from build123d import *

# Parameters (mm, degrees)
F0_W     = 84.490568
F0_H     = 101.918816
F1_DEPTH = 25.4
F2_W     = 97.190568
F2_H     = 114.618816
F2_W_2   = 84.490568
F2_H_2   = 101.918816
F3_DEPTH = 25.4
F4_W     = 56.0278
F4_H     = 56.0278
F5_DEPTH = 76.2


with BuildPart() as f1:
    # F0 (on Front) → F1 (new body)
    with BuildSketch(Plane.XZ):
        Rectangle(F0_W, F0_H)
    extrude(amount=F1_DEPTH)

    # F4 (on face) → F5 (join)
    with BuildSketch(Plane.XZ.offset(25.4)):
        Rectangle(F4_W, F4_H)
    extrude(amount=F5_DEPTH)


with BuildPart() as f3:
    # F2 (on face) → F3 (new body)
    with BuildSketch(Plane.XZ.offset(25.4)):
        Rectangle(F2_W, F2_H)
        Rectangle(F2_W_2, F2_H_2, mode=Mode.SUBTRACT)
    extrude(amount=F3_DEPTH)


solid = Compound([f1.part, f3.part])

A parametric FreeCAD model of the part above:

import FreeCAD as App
import Part
import Sketcher
Q = App.Units.Quantity


def add_polygon(sketch, points):
    """Adds a closed chain of lines whose ends are joined by coincident constraints."""
    first, n = sketch.GeometryCount, len(points)
    for a, b in zip(points, points[1:] + points[:1]):
        sketch.addGeometry(Part.LineSegment(App.Vector(*a, 0), App.Vector(*b, 0)), False)
    for i in range(n):
        sketch.addConstraint(Sketcher.Constraint("Coincident", first + i, 2, first + (i + 1) % n, 1))

doc = App.newDocument("Part")
body = doc.addObject("PartDesign::Body", "Body")

# Sketch on XZ plane
sketch1 = body.newObject("Sketcher::SketchObject", "Sketch")
sketch1.AttachmentSupport = (doc.getObject("XZ_Plane"), [""])
sketch1.MapMode = "FlatFace"
add_polygon(sketch1, [(-42.245284, 50.959408), (-42.245284, -50.959408), (42.245284, -50.959408), (42.245284, 50.959408)])  # lines 0-3
sketch1.addConstraint([
    Sketcher.Constraint("Vertical", 0),
    Sketcher.Constraint("Horizontal", 1),
    Sketcher.Constraint("Vertical", 2),
    Sketcher.Constraint("Horizontal", 3),
    Sketcher.Constraint("Symmetric", 0, 2, 2, 2, -1, 1),
    Sketcher.Constraint("DistanceX", 0, 2, -1, 1, Q("1.6632002 in")),
    Sketcher.Constraint("DistanceY", 0, 2, 0, 1, 101.918816),
])
pad1 = body.newObject("PartDesign::Pad", "Pad")
pad1.Profile = sketch1
pad1.Length = Q("1 in")

# Sketch on XZ plane
sketch2 = body.newObject("Sketcher::SketchObject", "Sketch001")
sketch2.AttachmentSupport = (doc.getObject("XZ_Plane"), [""])
sketch2.MapMode = "FlatFace"
sketch2.AttachmentOffset = App.Placement(App.Vector(0, 0, 1 * 25.4), App.Rotation())
add_polygon(sketch2, [(-28.0139, 28.0139), (-28.0139, -28.0139), (28.0139, -28.0139), (28.0139, 28.0139)])  # lines 0-3
sketch2.addConstraint([
    Sketcher.Constraint("Vertical", 0),
    Sketcher.Constraint("Horizontal", 1),
    Sketcher.Constraint("Vertical", 2),
    Sketcher.Constraint("Horizontal", 3),
    Sketcher.Constraint("Symmetric", 0, 2, 2, 2, -1, 1),
    Sketcher.Constraint("Equal", 3, 0),
    Sketcher.Constraint("DistanceX", 1, 1, 1, 2, 56.0278),
])
pad2 = body.newObject("PartDesign::Pad", "Pad001")
pad2.Profile = sketch2
pad2.Length = Q("3 in")
body2 = doc.addObject("PartDesign::Body", "Body001")

# Sketch on XZ plane
sketch3 = body2.newObject("Sketcher::SketchObject", "Sketch002")
sketch3.AttachmentSupport = (doc.getObject("XZ_Plane001"), [""])
sketch3.MapMode = "FlatFace"
sketch3.AttachmentOffset = App.Placement(App.Vector(0, 0, 1 * 25.4), App.Rotation())
add_polygon(sketch3, [(-48.595284, 57.309408), (-48.595284, -57.309408), (48.595284, -57.309408), (48.595284, 57.309408)])  # lines 0-3
add_polygon(sketch3, [(42.245284, -50.959408), (-42.245284, -50.959408), (-42.245284, 50.959408), (42.245284, 50.959408)])  # lines 4-7
sketch3.addConstraint([
    Sketcher.Constraint("Vertical", 0),
    Sketcher.Constraint("Horizontal", 1),
    Sketcher.Constraint("Vertical", 2),
    Sketcher.Constraint("Horizontal", 3),
    Sketcher.Constraint("Horizontal", 4),
    Sketcher.Constraint("Vertical", 5),
    Sketcher.Constraint("Horizontal", 6),
    Sketcher.Constraint("Vertical", 7),
    Sketcher.Constraint("Symmetric", 0, 2, 2, 2, -1, 1),
    Sketcher.Constraint("Symmetric", 4, 2, 6, 2, -1, 1),
    Sketcher.Constraint("DistanceX", 0, 2, 4, 2, Q("0.25 in")),
    Sketcher.Constraint("DistanceY", 0, 2, 4, 2, Q("0.25 in")),
    Sketcher.Constraint("DistanceX", 0, 2, -1, 1, Q("1.9132002 in")),
    Sketcher.Constraint("DistanceY", 0, 2, 0, 1, 114.618816),
])
pad3 = body2.newObject("PartDesign::Pad", "Pad002")
pad3.Profile = sketch3
pad3.Length = Q("1 in")

doc.recompute()
